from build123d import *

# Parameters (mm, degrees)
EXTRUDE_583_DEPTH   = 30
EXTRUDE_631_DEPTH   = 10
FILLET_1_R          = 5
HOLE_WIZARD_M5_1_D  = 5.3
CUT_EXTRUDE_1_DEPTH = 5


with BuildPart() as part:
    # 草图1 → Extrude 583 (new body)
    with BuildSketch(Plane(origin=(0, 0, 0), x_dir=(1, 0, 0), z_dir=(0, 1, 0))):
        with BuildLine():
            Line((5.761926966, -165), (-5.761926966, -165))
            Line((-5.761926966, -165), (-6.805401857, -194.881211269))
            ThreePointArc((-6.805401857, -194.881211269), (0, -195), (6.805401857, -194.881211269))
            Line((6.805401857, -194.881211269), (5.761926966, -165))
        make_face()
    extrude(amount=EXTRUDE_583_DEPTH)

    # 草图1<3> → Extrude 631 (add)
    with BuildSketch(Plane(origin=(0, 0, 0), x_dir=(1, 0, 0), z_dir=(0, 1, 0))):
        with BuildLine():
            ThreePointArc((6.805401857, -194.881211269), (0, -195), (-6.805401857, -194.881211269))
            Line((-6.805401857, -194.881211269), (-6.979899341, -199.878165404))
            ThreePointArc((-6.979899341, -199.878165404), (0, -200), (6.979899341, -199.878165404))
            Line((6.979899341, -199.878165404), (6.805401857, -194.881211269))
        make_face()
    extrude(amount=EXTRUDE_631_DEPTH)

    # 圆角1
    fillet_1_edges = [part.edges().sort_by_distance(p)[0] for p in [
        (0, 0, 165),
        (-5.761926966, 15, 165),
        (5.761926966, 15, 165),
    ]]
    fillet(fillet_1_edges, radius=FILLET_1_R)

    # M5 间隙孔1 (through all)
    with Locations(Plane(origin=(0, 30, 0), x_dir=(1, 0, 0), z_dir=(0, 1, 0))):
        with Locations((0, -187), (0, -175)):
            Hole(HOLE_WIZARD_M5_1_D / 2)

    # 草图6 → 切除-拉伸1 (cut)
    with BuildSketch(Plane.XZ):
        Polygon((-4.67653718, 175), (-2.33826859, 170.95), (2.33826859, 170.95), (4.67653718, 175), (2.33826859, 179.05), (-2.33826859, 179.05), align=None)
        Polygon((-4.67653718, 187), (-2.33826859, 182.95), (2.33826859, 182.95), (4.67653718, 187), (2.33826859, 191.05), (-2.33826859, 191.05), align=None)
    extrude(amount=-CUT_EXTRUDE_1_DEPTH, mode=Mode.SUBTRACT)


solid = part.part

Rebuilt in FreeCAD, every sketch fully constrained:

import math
import FreeCAD as App
import Part
import Sketcher
Q = App.Units.Quantity


def edges_at(feature, points):
    """Names of the edges that pass closest to the given points."""
    edges = feature.Shape.Edges
    near = lambda p: min(range(len(edges)), key=lambda i: edges[i].distToShape(Part.Vertex(*p))[0])
    return sorted({f"Edge{near(p) + 1}" for p in points})

doc = App.newDocument("Part")
params = doc.addObject("Spreadsheet::Sheet", "Params")
for row, (alias, value) in enumerate([
    ("sketch1_radius", "195 mm"),
    ("pad1_length", "30 mm"),
    ("sketch2_radius", "195 mm"),
    ("sketch2_radius2", "200 mm"),
    ("pad2_length", "10 mm"),
    ("fillet_radius", "5 mm"),
    ("sketch3_diameter", "5.3 mm"),
    ("hole_diameter", "5.3 mm"),
    ("pocket1_length", "5 mm"),
], start=1):
    params.set(f"A{row}", alias)
    params.set(f"B{row}", "=" + value)
    params.setAlias(f"B{row}", alias)

body = doc.addObject("PartDesign::Body", "Body")

# Sketch on XZ plane
sketch1 = body.newObject("Sketcher::SketchObject", "Sketch")
sketch1.AttachmentSupport = (doc.getObject("XZ_Plane"), [""])
sketch1.MapMode = "FlatFace"
sketch1.addGeometry([
    Part.LineSegment(App.Vector(6, 165, 0), App.Vector(-6, 165, 0)),
    Part.LineSegment(App.Vector(-6, 165, 0), App.Vector(-7, 195, 0)),
    Part.ArcOfCircle(Part.Circle(App.Vector(0, 0, 0), App.Vector(0, 0, 1), 195), math.radians(88), math.radians(92)),
    Part.LineSegment(App.Vector(7, 195, 0), App.Vector(6, 165, 0)),
], False)
sketch1.addConstraint([
    Sketcher.Constraint("Coincident", 0, 2, 1, 1),
    Sketcher.Constraint("Coincident", 1, 2, 2, 2),
    Sketcher.Constraint("Coincident", 2, 1, 3, 1),
    Sketcher.Constraint("Coincident", 3, 2, 0, 1),
    Sketcher.Constraint("Horizontal", 0),
    Sketcher.Constraint("Coincident", 2, 3, -1, 1),
    Sketcher.Constraint("Horizontal", 1, 2, 2, 1),
    Sketcher.Constraint("Equal", 1, 3),
    Sketcher.Constraint("Radius", 2, Q("195 mm")),
    Sketcher.Constraint("Angle", 1, Q("92 deg")),
    Sketcher.Constraint("DistanceY", -1, 1, 0, 2, Q("165 mm")),
    Sketcher.Constraint("DistanceX", 1, 2, -1, 1, Q("6.805402 mm")),
])
sketch1.setExpression("Constraints[8]", "Params.sketch1_radius")
pad1 = body.newObject("PartDesign::Pad", "Pad")
pad1.Profile = sketch1
pad1.setExpression("Length", "Params.pad1_length")
pad1.Reversed = True

# Sketch on XZ plane
sketch2 = body.newObject("Sketcher::SketchObject", "Sketch001")
sketch2.AttachmentSupport = (doc.getObject("XZ_Plane"), [""])
sketch2.MapMode = "FlatFace"
sketch2.addGeometry([
    Part.ArcOfCircle(Part.Circle(App.Vector(0, 0, 0), App.Vector(0, 0, 1), 195), math.radians(88), math.radians(92)),
    Part.LineSegment(App.Vector(-6.8, 194.9, 0), App.Vector(-7, 199.9, 0)),
    Part.ArcOfCircle(Part.Circle(App.Vector(0, 0, 0), App.Vector(0, 0, 1), 200), math.radians(88), math.radians(92)),
    Part.LineSegment(App.Vector(7, 199.9, 0), App.Vector(6.8, 194.9, 0)),
], False)
sketch2.addConstraint([
    Sketcher.Constraint("Coincident", 0, 2, 1, 1),
    Sketcher.Constraint("Coincident", 1, 2, 2, 2),
    Sketcher.Constraint("Coincident", 2, 1, 3, 1),
    Sketcher.Constraint("Coincident", 3, 2, 0, 1),
    Sketcher.Constraint("Coincident", 0, 3, -1, 1),
    Sketcher.Constraint("Coincident", 2, 3, -1, 1),
    Sketcher.Constraint("Horizontal", 1, 2, 2, 1),
    Sketcher.Constraint("Horizontal", 0, 2, 3, 2),
    Sketcher.Constraint("Radius", 0, Q("195 mm")),
    Sketcher.Constraint("Radius", 2, Q("200 mm")),
    Sketcher.Constraint("Angle", 1, Q("92 deg")),
    Sketcher.Constraint("DistanceX", 0, 2, -1, 1, Q("6.805402 mm")),
])
sketch2.setExpression("Constraints[8]", "Params.sketch2_radius")
sketch2.setExpression("Constraints[9]", "Params.sketch2_radius2")
pad2 = body.newObject("PartDesign::Pad", "Pad001")
pad2.Profile = sketch2
pad2.setExpression("Length", "Params.pad2_length")
pad2.Reversed = True
doc.recompute()

fillet = body.newObject("PartDesign::Fillet", "Fillet")
fillet.Base = (pad2, edges_at(pad2, [(0, 0, 165), (-5.762, 15, 165), (5.762, 15, 165)]))
fillet.setExpression("Radius", "Params.fillet_radius")

# Sketch on XZ plane
sketch3 = body.newObject("Sketcher::SketchObject", "Sketch002")
sketch3.AttachmentSupport = (doc.getObject("XZ_Plane"), [""])
sketch3.MapMode = "FlatFace"
sketch3.AttachmentOffset = App.Placement(App.Vector(0, 0, -30), App.Rotation())
sketch3.addGeometry([
    Part.Circle(App.Vector(0, 187, 0), App.Vector(0, 0, 1), 2.6),
    Part.Circle(App.Vector(0, 175, 0), App.Vector(0, 0, 1), 2.6),
], False)
sketch3.addConstraint([
    Sketcher.Constraint("Equal", 0, 1),
    Sketcher.Constraint("PointOnObject", 0, 3, -2),
    Sketcher.Constraint("PointOnObject", 1, 3, -2),
    Sketcher.Constraint("Diameter", 0, Q("5.3 mm")),
    Sketcher.Constraint("DistanceY", -1, 1, 0, 3, Q("187 mm")),
    Sketcher.Constraint("DistanceY", -1, 1, 1, 3, Q("175 mm")),
])
sketch3.setExpression("Constraints[3]", "Params.sketch3_diameter")
doc.recompute()
hole = body.newObject("PartDesign::Hole", "Hole")
hole.Profile = sketch3
hole.ThreadType = "None"
hole.setExpression("Diameter", "Params.hole_diameter")
hole.DepthType = "ThroughAll"
hole.Reversed = True

# Sketch on XZ plane
sketch4 = body.newObject("Sketcher::SketchObject", "Sketch003")
sketch4.AttachmentSupport = (doc.getObject("XZ_Plane"), [""])
sketch4.MapMode = "FlatFace"
sketch4.addGeometry([
    Part.LineSegment(App.Vector(-4.7, 175, 0), App.Vector(-2.3, 170.9, 0)),  # 0
    Part.LineSegment(App.Vector(-2.3, 170.9, 0), App.Vector(2.3, 170.9, 0)),  # 1
    Part.LineSegment(App.Vector(2.3, 170.9, 0), App.Vector(4.7, 175, 0)),  # 2
    Part.LineSegment(App.Vector(4.7, 175, 0), App.Vector(2.3, 179.1, 0)),  # 3
    Part.LineSegment(App.Vector(2.3, 179.1, 0), App.Vector(-2.3, 179.1, 0)),  # 4
    Part.LineSegment(App.Vector(-2.3, 179.1, 0), App.Vector(-4.7, 175, 0)),  # 5
    Part.LineSegment(App.Vector(-4.7, 187, 0), App.Vector(-2.3, 182.9, 0)),  # 6
    Part.LineSegment(App.Vector(-2.3, 182.9, 0), App.Vector(2.3, 182.9, 0)),  # 7
    Part.LineSegment(App.Vector(2.3, 182.9, 0), App.Vector(4.7, 187, 0)),  # 8
    Part.LineSegment(App.Vector(4.7, 187, 0), App.Vector(2.3, 191.1, 0)),  # 9
    Part.LineSegment(App.Vector(2.3, 191.1, 0), App.Vector(-2.3, 191.1, 0)),  # 10
    Part.LineSegment(App.Vector(-2.3, 191.1, 0), App.Vector(-4.7, 187, 0)),  # 11
], False)
sketch4.addConstraint([
    Sketcher.Constraint("Coincident", 0, 2, 1, 1),
    Sketcher.Constraint("Coincident", 1, 2, 2, 1),
    Sketcher.Constraint("Coincident", 2, 2, 3, 1),
    Sketcher.Constraint("Coincident", 3, 2, 4, 1),
    Sketcher.Constraint("Coincident", 4, 2, 5, 1),
    Sketcher.Constraint("Coincident", 5, 2, 0, 1),
    Sketcher.Constraint("Coincident", 6, 2, 7, 1),
    Sketcher.Constraint("Coincident", 7, 2, 8, 1),
    Sketcher.Constraint("Coincident", 8, 2, 9, 1),
    Sketcher.Constraint("Coincident", 9, 2, 10, 1),
    Sketcher.Constraint("Coincident", 10, 2, 11, 1),
    Sketcher.Constraint("Coincident", 11, 2, 6, 1),
    Sketcher.Constraint("Horizontal", 1),
    Sketcher.Constraint("Horizontal", 4),
    Sketcher.Constraint("Horizontal", 7),
    Sketcher.Constraint("Horizontal", 10),
    Sketcher.Constraint("Symmetric", 2, 2, 5, 2, -2),
    Sketcher.Constraint("Symmetric", 8, 2, 11, 2, -2),
    Sketcher.Constraint("Parallel", 0, 3),
    Sketcher.Constraint("Parallel", 2, 5),
    Sketcher.Constraint("Parallel", 3, 6),
    Sketcher.Constraint("Parallel", 5, 8),
    Sketcher.Constraint("Parallel", 6, 9),
    Sketcher.Constraint("Parallel", 8, 11),
    Sketcher.Constraint("Vertical", 1, 2, 3, 2),
    Sketcher.Constraint("Vertical", 0, 2, 4, 2),
    Sketcher.Constraint("Vertical", 4, 2, 6, 2),
    Sketcher.Constraint("Vertical", 2, 2, 8, 2),
    Sketcher.Constraint("Vertical", 7, 2, 9, 2),
    Sketcher.Constraint("Angle", 0, Q("-60 deg")),
    Sketcher.Constraint("DistanceY", -1, 1, 2, 2, Q("175 mm")),
    Sketcher.Constraint("DistanceY", -1, 1, 8, 2, Q("187 mm")),
    Sketcher.Constraint("DistanceY", 1, 2, 3, 2, Q("8.1 mm")),
    Sketcher.Constraint("DistanceX", 1, 1, 1, 2, Q("4.676537 mm")),
])
pocket1 = body.newObject("PartDesign::Pocket", "Pocket")
pocket1.Profile = sketch4
pocket1.setExpression("Length", "Params.pocket1_length")

doc.recompute()
